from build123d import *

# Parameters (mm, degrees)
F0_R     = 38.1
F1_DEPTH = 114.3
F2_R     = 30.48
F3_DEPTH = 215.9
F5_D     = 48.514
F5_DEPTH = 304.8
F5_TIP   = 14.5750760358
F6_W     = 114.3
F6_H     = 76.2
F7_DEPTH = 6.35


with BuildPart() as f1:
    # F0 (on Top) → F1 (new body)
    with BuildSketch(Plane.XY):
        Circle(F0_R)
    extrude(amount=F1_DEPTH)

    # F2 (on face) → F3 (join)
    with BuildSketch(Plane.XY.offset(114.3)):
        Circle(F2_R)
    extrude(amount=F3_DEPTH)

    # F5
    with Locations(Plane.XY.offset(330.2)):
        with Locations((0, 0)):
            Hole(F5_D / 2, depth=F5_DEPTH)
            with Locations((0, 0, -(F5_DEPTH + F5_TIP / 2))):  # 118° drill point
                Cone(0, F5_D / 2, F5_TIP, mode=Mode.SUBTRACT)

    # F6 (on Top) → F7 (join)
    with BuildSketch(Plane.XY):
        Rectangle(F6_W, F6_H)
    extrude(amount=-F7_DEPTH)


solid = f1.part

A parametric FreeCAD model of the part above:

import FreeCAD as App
import Part
import Sketcher
Q = App.Units.Quantity

doc = App.newDocument("Part")
body = doc.addObject("PartDesign::Body", "Body")

# Sketch on XY plane
sketch1 = body.newObject("Sketcher::SketchObject", "Sketch")
sketch1.AttachmentSupport = (doc.getObject("XY_Plane"), [""])
sketch1.MapMode = "FlatFace"
sketch1.addGeometry(Part.Circle(App.Vector(0, 0, 0), App.Vector(0, 0, 1), 38.1), False)
sketch1.addConstraint([
    Sketcher.Constraint("Coincident", 0, 3, -1, 1),
    Sketcher.Constraint("Diameter", 0, Q("3 in")),
])
pad1 = body.newObject("PartDesign::Pad", "Pad")
pad1.Profile = sketch1
pad1.Length = Q("4.5 in")

# Sketch on XY plane
sketch2 = body.newObject("Sketcher::SketchObject", "Sketch001")
sketch2.AttachmentSupport = (doc.getObject("XY_Plane"), [""])
sketch2.MapMode = "FlatFace"
sketch2.AttachmentOffset = App.Placement(App.Vector(0, 0, 4.5 * 25.4), App.Rotation())
sketch2.addGeometry(Part.Circle(App.Vector(0, 0, 0), App.Vector(0, 0, 1), 30.48), False)
sketch2.addConstraint([
    Sketcher.Constraint("Coincident", 0, 3, -1, 1),
    Sketcher.Constraint("Diameter", 0, Q("2.4 in")),
])
pad2 = body.newObject("PartDesign::Pad", "Pad001")
pad2.Profile = sketch2
pad2.Length = Q("8.5 in")

# Sketch on XY plane
sketch3 = body.newObject("Sketcher::SketchObject", "Sketch002")
sketch3.AttachmentSupport = (doc.getObject("XY_Plane"), [""])
sketch3.MapMode = "FlatFace"
sketch3.AttachmentOffset = App.Placement(App.Vector(0, 0, 13 * 25.4), App.Rotation())
sketch3.addGeometry(Part.Circle(App.Vector(0, 0, 0), App.Vector(0, 0, 1), 24.257), False)
sketch3.addConstraint([
    Sketcher.Constraint("Coincident", 0, 3, -1, 1),
    Sketcher.Constraint("Diameter", 0, Q("1.91 in")),
])
doc.recompute()
hole = body.newObject("PartDesign::Hole", "Hole")
hole.Profile = sketch3
hole.ThreadType = "None"
hole.Diameter = Q("1.91 in")
hole.DepthType = "Dimension"
hole.Depth = Q("12 in")
hole.DrillPoint = "Angled"
hole.DrillPointAngle = 118

# Sketch on XY plane
sketch4 = body.newObject("Sketcher::SketchObject", "Sketch003")
sketch4.AttachmentSupport = (doc.getObject("XY_Plane"), [""])
sketch4.MapMode = "FlatFace"
sketch4.addGeometry([
    Part.LineSegment(App.Vector(-57.15, 38.1, 0), App.Vector(-57.15, -38.1, 0)),
    Part.LineSegment(App.Vector(-57.15, -38.1, 0), App.Vector(57.15, -38.1, 0)),
    Part.LineSegment(App.Vector(57.15, -38.1, 0), App.Vector(57.15, 38.1, 0)),
    Part.LineSegment(App.Vector(57.15, 38.1, 0), App.Vector(-57.15, 38.1, 0)),
], False)
sketch4.addConstraint([
    Sketcher.Constraint("Coincident", 0, 2, 1, 1),
    Sketcher.Constraint("Coincident", 1, 2, 2, 1),
    Sketcher.Constraint("Coincident", 2, 2, 3, 1),
    Sketcher.Constraint("Coincident", 3, 2, 0, 1),
    Sketcher.Constraint("Vertical", 0),
    Sketcher.Constraint("Horizontal", 1),
    Sketcher.Constraint("Vertical", 2),
    Sketcher.Constraint("Horizontal", 3),
    Sketcher.Constraint("Symmetric", 0, 2, 2, 2, -1, 1),
    Sketcher.Constraint("DistanceY", 0, 2, 0, 1, Q("3 in")),
    Sketcher.Constraint("DistanceX", 1, 1, 1, 2, Q("4.5 in")),
])
pad3 = body.newObject("PartDesign::Pad", "Pad002")
pad3.Profile = sketch4
pad3.Length = Q("0.25 in")
pad3.Reversed = True

doc.recompute()
